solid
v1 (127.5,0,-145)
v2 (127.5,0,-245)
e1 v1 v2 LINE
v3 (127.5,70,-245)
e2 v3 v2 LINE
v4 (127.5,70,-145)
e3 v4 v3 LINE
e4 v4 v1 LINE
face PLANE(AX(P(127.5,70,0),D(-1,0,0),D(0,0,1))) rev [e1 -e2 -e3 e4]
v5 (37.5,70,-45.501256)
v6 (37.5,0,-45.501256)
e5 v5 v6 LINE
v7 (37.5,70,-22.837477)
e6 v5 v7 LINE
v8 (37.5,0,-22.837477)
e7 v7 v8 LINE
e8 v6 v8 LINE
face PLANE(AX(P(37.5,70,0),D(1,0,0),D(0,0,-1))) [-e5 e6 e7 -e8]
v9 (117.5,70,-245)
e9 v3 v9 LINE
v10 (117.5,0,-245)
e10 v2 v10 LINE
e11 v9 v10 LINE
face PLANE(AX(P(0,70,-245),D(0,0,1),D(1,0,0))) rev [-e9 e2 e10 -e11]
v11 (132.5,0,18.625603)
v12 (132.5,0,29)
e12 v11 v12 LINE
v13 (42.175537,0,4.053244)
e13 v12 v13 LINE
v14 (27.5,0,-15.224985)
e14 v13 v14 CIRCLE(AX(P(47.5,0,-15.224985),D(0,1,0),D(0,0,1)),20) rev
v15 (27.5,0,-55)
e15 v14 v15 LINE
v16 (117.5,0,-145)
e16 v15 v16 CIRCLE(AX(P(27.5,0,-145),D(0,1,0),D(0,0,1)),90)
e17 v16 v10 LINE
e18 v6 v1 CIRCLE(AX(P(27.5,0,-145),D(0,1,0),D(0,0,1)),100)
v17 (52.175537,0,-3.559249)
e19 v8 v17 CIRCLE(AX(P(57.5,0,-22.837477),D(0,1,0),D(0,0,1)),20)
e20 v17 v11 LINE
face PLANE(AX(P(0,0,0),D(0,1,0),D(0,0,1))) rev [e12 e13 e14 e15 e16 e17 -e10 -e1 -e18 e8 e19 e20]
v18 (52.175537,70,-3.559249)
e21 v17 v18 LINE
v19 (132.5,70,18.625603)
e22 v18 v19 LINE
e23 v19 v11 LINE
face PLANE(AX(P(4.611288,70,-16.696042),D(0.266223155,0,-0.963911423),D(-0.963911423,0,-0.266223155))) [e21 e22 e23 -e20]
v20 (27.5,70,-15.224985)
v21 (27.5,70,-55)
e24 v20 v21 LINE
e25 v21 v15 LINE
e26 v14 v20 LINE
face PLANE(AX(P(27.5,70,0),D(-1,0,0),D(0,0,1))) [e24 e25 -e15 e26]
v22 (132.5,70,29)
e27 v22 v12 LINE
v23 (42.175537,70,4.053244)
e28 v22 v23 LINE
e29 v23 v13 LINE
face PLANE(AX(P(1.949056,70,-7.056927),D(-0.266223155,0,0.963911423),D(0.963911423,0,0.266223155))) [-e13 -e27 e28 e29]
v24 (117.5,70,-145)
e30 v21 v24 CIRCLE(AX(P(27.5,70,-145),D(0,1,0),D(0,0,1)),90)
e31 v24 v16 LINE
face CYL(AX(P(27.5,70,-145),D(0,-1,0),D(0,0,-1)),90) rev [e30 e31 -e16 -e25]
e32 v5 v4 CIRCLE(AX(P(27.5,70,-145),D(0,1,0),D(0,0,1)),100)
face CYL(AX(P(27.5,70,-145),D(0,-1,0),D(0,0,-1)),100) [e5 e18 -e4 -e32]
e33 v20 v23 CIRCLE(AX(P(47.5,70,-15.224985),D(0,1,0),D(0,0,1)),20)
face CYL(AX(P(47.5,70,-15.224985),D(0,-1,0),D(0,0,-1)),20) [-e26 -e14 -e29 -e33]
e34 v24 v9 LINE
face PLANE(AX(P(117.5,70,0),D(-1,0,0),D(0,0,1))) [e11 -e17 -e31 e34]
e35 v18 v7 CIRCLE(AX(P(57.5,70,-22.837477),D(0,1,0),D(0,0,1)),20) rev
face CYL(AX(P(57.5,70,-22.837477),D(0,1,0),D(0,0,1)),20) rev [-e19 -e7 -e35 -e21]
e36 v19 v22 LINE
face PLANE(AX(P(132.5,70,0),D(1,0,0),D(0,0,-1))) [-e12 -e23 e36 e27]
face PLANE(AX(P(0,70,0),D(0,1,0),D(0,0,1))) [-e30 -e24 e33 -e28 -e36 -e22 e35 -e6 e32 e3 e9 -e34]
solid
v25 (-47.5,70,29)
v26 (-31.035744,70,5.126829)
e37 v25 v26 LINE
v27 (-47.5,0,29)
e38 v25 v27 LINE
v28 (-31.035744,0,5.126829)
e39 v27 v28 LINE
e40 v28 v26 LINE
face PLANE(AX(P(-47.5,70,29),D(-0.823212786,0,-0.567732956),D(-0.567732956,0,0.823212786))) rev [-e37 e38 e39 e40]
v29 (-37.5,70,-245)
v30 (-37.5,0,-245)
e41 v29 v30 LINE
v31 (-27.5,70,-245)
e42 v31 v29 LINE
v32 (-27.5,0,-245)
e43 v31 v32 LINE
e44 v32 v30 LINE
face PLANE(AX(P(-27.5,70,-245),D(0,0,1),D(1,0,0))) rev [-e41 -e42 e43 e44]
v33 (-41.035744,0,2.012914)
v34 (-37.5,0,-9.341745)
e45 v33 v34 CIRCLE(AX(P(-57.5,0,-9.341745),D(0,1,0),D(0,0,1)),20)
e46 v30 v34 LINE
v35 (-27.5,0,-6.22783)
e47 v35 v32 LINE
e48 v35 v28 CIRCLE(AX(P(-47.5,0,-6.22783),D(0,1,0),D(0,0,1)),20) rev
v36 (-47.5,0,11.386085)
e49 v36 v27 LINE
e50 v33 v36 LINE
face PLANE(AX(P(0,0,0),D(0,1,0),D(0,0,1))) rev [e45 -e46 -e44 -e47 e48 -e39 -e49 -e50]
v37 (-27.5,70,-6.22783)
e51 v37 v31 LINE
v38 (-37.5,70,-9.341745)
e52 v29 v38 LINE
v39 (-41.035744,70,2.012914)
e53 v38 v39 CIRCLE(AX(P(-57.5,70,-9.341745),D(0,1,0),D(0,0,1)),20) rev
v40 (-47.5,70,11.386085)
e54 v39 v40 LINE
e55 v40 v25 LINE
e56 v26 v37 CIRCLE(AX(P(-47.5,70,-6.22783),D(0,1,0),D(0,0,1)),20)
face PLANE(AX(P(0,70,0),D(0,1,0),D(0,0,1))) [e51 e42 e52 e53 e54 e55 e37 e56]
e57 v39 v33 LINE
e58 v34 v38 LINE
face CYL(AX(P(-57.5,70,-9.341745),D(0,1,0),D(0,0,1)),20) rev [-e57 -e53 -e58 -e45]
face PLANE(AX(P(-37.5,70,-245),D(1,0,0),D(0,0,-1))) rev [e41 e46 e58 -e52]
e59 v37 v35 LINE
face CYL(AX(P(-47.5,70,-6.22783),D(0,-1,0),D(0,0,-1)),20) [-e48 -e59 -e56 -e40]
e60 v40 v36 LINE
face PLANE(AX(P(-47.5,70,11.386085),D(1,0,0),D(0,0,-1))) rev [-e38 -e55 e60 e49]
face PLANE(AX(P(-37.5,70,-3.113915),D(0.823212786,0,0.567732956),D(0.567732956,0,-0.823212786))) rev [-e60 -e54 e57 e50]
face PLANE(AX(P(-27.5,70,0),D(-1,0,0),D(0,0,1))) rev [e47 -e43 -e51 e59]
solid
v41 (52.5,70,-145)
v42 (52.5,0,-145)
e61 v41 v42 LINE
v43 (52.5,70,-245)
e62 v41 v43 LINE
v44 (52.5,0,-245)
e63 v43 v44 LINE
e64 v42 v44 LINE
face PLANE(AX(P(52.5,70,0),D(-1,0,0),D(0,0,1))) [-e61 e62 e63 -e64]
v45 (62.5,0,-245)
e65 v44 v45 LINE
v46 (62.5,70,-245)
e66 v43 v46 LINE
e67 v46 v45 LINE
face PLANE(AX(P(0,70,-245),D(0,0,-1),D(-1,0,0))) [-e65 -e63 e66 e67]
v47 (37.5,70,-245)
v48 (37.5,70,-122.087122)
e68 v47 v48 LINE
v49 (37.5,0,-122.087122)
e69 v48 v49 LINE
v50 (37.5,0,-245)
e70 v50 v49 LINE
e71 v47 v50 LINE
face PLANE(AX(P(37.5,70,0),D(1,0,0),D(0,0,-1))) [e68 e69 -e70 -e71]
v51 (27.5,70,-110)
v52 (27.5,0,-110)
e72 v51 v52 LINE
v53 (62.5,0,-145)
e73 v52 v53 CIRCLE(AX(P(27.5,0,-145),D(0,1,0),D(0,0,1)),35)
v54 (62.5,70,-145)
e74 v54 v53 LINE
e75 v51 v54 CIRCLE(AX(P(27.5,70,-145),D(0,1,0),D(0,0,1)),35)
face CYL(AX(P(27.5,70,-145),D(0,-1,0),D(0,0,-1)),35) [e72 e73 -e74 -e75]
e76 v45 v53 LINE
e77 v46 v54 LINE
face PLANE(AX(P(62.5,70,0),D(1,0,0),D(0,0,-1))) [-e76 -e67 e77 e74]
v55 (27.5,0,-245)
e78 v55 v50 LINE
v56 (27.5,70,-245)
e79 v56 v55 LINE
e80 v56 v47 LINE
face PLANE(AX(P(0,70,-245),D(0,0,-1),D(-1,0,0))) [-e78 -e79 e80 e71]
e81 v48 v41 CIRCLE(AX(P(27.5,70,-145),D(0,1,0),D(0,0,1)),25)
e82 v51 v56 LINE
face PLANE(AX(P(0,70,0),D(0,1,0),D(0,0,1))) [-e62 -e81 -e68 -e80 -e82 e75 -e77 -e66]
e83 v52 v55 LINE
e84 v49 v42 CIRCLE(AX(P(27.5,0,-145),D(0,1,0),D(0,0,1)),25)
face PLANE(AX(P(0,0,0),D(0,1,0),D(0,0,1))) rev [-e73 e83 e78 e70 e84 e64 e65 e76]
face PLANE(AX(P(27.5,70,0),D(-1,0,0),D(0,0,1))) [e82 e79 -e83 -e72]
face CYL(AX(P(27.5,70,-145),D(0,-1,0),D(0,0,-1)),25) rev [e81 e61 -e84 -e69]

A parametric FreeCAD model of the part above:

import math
import FreeCAD as App
import Part
import Sketcher
from FreeCAD import Vector
Q = App.Units.Quantity


def edges_at(feature, points):
    """Names of the edges that pass closest to the given points."""
    edges = feature.Shape.Edges
    near = lambda p: min(range(len(edges)), key=lambda i: edges[i].distToShape(Part.Vertex(*p))[0])
    return sorted({f"Edge{near(p) + 1}" for p in points})

doc = App.newDocument("Part")
body = doc.addObject("PartDesign::Body", "Body")

sketch1 = body.newObject("Sketcher::SketchObject", "Sketch")
sketch1.AttachmentSupport = (doc.getObject("XZ_Plane"), [""])
sketch1.MapMode = "FlatFace"
sketch1.addGeometry(Part.LineSegment(Vector(-48, 11, 0), Vector(-48, 29, 0)), False)
sketch1.addGeometry(Part.LineSegment(Vector(-48, 29, 0), Vector(-28, 0, 0)), False)
sketch1.addGeometry(Part.LineSegment(Vector(-28, 0, 0), Vector(-28, -245, 0)), False)
sketch1.addGeometry(Part.LineSegment(Vector(-28, -245, 0), Vector(-38, -245, 0)), False)
sketch1.addGeometry(Part.LineSegment(Vector(-38, -245, 0), Vector(-38, -3, 0)), False)
sketch1.addGeometry(Part.LineSegment(Vector(-38, -3, 0), Vector(-48, 11, 0)), False)
sketch1.addConstraint(Sketcher.Constraint("Coincident", 0, 2, 1, 1))
sketch1.addConstraint(Sketcher.Constraint("Coincident", 1, 2, 2, 1))
sketch1.addConstraint(Sketcher.Constraint("Coincident", 2, 2, 3, 1))
sketch1.addConstraint(Sketcher.Constraint("Coincident", 3, 2, 4, 1))
sketch1.addConstraint(Sketcher.Constraint("Coincident", 4, 2, 5, 1))
sketch1.addConstraint(Sketcher.Constraint("Coincident", 5, 2, 0, 1))
sketch1.addConstraint(Sketcher.Constraint("Vertical", 0))
sketch1.addConstraint(Sketcher.Constraint("Vertical", 2))
sketch1.addConstraint(Sketcher.Constraint("Horizontal", 3))
sketch1.addConstraint(Sketcher.Constraint("Vertical", 4))
sketch1.addConstraint(Sketcher.Constraint("PointOnObject", 1, 2, -1))
sketch1.addConstraint(Sketcher.Constraint("Parallel", 1, 5))
sketch1.addConstraint(Sketcher.Constraint("DistanceX", 3, 2, 3, 1, Q("10 mm")))
sketch1.addConstraint(Sketcher.Constraint("DistanceY", 2, 2, 2, 1, Q("245 mm")))
sketch1.addConstraint(Sketcher.Constraint("DistanceY", -1, 1, 0, 2, Q("29 mm")))
sketch1.addConstraint(Sketcher.Constraint("DistanceX", 0, 2, 1, 2, Q("20 mm")))
sketch1.addConstraint(Sketcher.Constraint("DistanceX", 0, 2, -1, 1, Q("47.5 mm")))
sketch1.addConstraint(Sketcher.Constraint("DistanceY", 0, 1, 0, 2, Q("17.613915 mm")))
pad1 = body.newObject("PartDesign::Pad", "Pad")
pad1.Profile = sketch1
pad1.Length = 70
pad1.Reversed = True
doc.recompute()

fillet = body.newObject("PartDesign::Fillet", "Fillet")
fillet.Base = (pad1, edges_at(pad1, [(-27.5, 35, 0), (-37.5, 35, -3.114)]))
fillet.Radius = 20
body2 = doc.addObject("PartDesign::Body", "Body001")

sketch2 = body2.newObject("Sketcher::SketchObject", "Sketch001")
sketch2.AttachmentSupport = (doc.getObject("XZ_Plane001"), [""])
sketch2.MapMode = "FlatFace"
sketch2.addGeometry(Part.LineSegment(Vector(28, 0, 0), Vector(132, 29, 0)), False)
sketch2.addGeometry(Part.LineSegment(Vector(132, 29, 0), Vector(132, 19, 0)), False)
sketch2.addGeometry(Part.LineSegment(Vector(132, 19, 0), Vector(38, -8, 0)), False)
sketch2.addGeometry(Part.LineSegment(Vector(38, -8, 0), Vector(38, -46, 0)), False)
sketch2.addGeometry(Part.ArcOfCircle(Part.Circle(Vector(27, -145, 0), Vector(0, 0, 1), 100), math.radians(0), math.radians(84)), False)
sketch2.addGeometry(Part.LineSegment(Vector(128, -145, 0), Vector(128, -245, 0)), False)
sketch2.addGeometry(Part.LineSegment(Vector(128, -245, 0), Vector(118, -245, 0)), False)
sketch2.addGeometry(Part.LineSegment(Vector(118, -245, 0), Vector(118, -145, 0)), False)
sketch2.addGeometry(Part.ArcOfCircle(Part.Circle(Vector(28, -145, 0), Vector(0, 0, 1), 90), math.radians(0), math.radians(90)), False)
sketch2.addGeometry(Part.LineSegment(Vector(28, -55, 0), Vector(28, 0, 0)), False)
sketch2.addConstraint(Sketcher.Constraint("Coincident", 0, 2, 1, 1))
sketch2.addConstraint(Sketcher.Constraint("Coincident", 1, 2, 2, 1))
sketch2.addConstraint(Sketcher.Constraint("Coincident", 2, 2, 3, 1))
sketch2.addConstraint(Sketcher.Constraint("Coincident", 3, 2, 4, 2))
sketch2.addConstraint(Sketcher.Constraint("Tangent", 4, 1, 5, 1))
sketch2.addConstraint(Sketcher.Constraint("Coincident", 5, 2, 6, 1))
sketch2.addConstraint(Sketcher.Constraint("Coincident", 6, 2, 7, 1))
sketch2.addConstraint(Sketcher.Constraint("Tangent", 7, 2, 8, 1))
sketch2.addConstraint(Sketcher.Constraint("Coincident", 8, 2, 9, 1))
sketch2.addConstraint(Sketcher.Constraint("Coincident", 9, 2, 0, 1))
sketch2.addConstraint(Sketcher.Constraint("Vertical", 1))
sketch2.addConstraint(Sketcher.Constraint("Vertical", 3))
sketch2.addConstraint(Sketcher.Constraint("Vertical", 5))
sketch2.addConstraint(Sketcher.Constraint("Horizontal", 6))
sketch2.addConstraint(Sketcher.Constraint("Vertical", 7))
sketch2.addConstraint(Sketcher.Constraint("Vertical", 9))
sketch2.addConstraint(Sketcher.Constraint("Coincident", 8, 3, 4, 3))
sketch2.addConstraint(Sketcher.Constraint("PointOnObject", 9, 2, -1))
sketch2.addConstraint(Sketcher.Constraint("Parallel", 0, 2))
sketch2.addConstraint(Sketcher.Constraint("Vertical", 4, 3, 8, 2))
sketch2.addConstraint(Sketcher.Constraint("Radius", 4, Q("100 mm")))
sketch2.addConstraint(Sketcher.Constraint("Radius", 8, Q("90 mm")))
sketch2.addConstraint(Sketcher.Constraint("DistanceY", 5, 2, 5, 1, Q("100 mm")))
sketch2.addConstraint(Sketcher.Constraint("DistanceY", 9, 1, 9, 2, Q("55 mm")))
sketch2.addConstraint(Sketcher.Constraint("DistanceY", -1, 1, 0, 2, Q("29 mm")))
sketch2.addConstraint(Sketcher.Constraint("DistanceX", 8, 3, 0, 2, Q("105 mm")))
sketch2.addConstraint(Sketcher.Constraint("DistanceX", 2, 2, 1, 2, Q("95 mm")))
sketch2.addConstraint(Sketcher.Constraint("DistanceX", -1, 1, 4, 3, Q("27.5 mm")))
sketch2.addConstraint(Sketcher.Constraint("DistanceY", 1, 2, 1, 1, Q("10.374397 mm")))
pad2 = body2.newObject("PartDesign::Pad", "Pad001")
pad2.Profile = sketch2
pad2.Length = 70
pad2.Reversed = True
doc.recompute()

fillet2 = body2.newObject("PartDesign::Fillet", "Fillet001")
fillet2.Base = (pad2, edges_at(pad2, [(37.5, 35, -7.612), (27.5, 35, 0)]))
fillet2.Radius = 20
body3 = doc.addObject("PartDesign::Body", "Body002")

sketch3 = body3.newObject("Sketcher::SketchObject", "Sketch002")
sketch3.AttachmentSupport = (doc.getObject("XZ_Plane002"), [""])
sketch3.MapMode = "FlatFace"
sketch3.addGeometry(Part.LineSegment(Vector(38, -245, 0), Vector(28, -245, 0)), False)
sketch3.addGeometry(Part.LineSegment(Vector(28, -245, 0), Vector(28, -110, 0)), False)
sketch3.addGeometry(Part.ArcOfCircle(Part.Circle(Vector(28, -145, 0), Vector(0, 0, 1), 35), math.radians(0), math.radians(90)), False)
sketch3.addGeometry(Part.LineSegment(Vector(62, -145, 0), Vector(62, -245, 0)), False)
sketch3.addGeometry(Part.LineSegment(Vector(62, -245, 0), Vector(52, -245, 0)), False)
sketch3.addGeometry(Part.LineSegment(Vector(52, -245, 0), Vector(52, -145, 0)), False)
sketch3.addGeometry(Part.ArcOfCircle(Part.Circle(Vector(27, -145, 0), Vector(0, 0, 1), 25), math.radians(0), math.radians(66)), False)
sketch3.addGeometry(Part.LineSegment(Vector(38, -122, 0), Vector(38, -245, 0)), False)
sketch3.addConstraint(Sketcher.Constraint("Coincident", 0, 2, 1, 1))
sketch3.addConstraint(Sketcher.Constraint("Coincident", 1, 2, 2, 2))
sketch3.addConstraint(Sketcher.Constraint("Tangent", 2, 1, 3, 1))
sketch3.addConstraint(Sketcher.Constraint("Coincident", 3, 2, 4, 1))
sketch3.addConstraint(Sketcher.Constraint("Coincident", 4, 2, 5, 1))
sketch3.addConstraint(Sketcher.Constraint("Tangent", 5, 2, 6, 1))
sketch3.addConstraint(Sketcher.Constraint("Coincident", 6, 2, 7, 1))
sketch3.addConstraint(Sketcher.Constraint("Coincident", 7, 2, 0, 1))
sketch3.addConstraint(Sketcher.Constraint("Horizontal", 0))
sketch3.addConstraint(Sketcher.Constraint("Vertical", 1))
sketch3.addConstraint(Sketcher.Constraint("Vertical", 3))
sketch3.addConstraint(Sketcher.Constraint("Horizontal", 4))
sketch3.addConstraint(Sketcher.Constraint("Vertical", 5))
sketch3.addConstraint(Sketcher.Constraint("Vertical", 7))
sketch3.addConstraint(Sketcher.Constraint("Coincident", 6, 3, 2, 3))
sketch3.addConstraint(Sketcher.Constraint("Horizontal", 0, 2, 3, 2))
sketch3.addConstraint(Sketcher.Constraint("Vertical", 6, 3, 0, 2))
sketch3.addConstraint(Sketcher.Constraint("Equal", 0, 4))
sketch3.addConstraint(Sketcher.Constraint("Radius", 2, Q("35 mm")))
sketch3.addConstraint(Sketcher.Constraint("Radius", 6, Q("25 mm")))
sketch3.addConstraint(Sketcher.Constraint("DistanceY", 1, 1, 1, 2, Q("135 mm")))
sketch3.addConstraint(Sketcher.Constraint("DistanceY", 2, 3, -1, 1, Q("145 mm")))
sketch3.addConstraint(Sketcher.Constraint("DistanceX", -1, 1, 2, 3, Q("27.5 mm")))
pad3 = body3.newObject("PartDesign::Pad", "Pad002")
pad3.Profile = sketch3
pad3.Length = 70
pad3.Reversed = True

doc.recompute()
